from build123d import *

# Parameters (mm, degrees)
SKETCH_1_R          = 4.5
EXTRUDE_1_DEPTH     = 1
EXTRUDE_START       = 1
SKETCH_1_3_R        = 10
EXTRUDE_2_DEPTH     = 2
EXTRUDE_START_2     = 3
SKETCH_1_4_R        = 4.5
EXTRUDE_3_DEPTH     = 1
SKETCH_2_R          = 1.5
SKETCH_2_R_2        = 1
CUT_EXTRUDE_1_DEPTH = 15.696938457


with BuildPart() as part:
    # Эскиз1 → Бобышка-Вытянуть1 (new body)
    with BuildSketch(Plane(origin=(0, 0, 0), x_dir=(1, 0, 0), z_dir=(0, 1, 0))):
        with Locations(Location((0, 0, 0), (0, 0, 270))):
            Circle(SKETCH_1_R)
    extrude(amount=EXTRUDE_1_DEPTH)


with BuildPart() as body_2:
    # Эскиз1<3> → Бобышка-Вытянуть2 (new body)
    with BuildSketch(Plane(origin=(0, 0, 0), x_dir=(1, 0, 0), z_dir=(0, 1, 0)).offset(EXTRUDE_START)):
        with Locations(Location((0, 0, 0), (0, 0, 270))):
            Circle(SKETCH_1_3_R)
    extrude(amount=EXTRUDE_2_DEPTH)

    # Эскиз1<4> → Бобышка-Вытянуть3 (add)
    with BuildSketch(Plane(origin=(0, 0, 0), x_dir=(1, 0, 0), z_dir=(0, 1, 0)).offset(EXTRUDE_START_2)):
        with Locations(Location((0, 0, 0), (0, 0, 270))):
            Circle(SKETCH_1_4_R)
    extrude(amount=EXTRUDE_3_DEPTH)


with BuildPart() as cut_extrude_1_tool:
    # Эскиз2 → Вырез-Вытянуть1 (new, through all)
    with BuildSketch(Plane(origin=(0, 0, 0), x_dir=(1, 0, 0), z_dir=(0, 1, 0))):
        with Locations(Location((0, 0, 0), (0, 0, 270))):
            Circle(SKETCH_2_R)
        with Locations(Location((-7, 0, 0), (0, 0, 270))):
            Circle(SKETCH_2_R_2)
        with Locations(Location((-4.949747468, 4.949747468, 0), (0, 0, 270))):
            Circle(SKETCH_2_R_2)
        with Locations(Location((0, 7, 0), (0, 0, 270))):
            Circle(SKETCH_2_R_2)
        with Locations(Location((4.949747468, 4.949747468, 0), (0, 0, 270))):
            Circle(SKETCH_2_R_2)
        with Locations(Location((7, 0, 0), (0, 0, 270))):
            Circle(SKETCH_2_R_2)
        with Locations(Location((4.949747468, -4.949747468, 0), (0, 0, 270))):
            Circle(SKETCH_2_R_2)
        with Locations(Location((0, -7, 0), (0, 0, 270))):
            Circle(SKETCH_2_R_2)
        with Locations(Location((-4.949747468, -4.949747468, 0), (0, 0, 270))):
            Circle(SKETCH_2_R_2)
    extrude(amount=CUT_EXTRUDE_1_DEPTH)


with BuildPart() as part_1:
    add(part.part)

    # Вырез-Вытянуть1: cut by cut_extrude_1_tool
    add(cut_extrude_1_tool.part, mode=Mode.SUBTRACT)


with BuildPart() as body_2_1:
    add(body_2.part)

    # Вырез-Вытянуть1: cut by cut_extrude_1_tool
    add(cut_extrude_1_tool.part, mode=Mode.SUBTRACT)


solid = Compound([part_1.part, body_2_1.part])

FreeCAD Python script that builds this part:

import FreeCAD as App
import Part
import Sketcher

V = App.Vector

doc = App.newDocument("Part")
params = doc.addObject("Spreadsheet::Sheet", "Params")
for row, (alias, value) in enumerate([
    ("sketch1_diameter", "9 mm"),
    ("pad1_length", "1 mm"),
    ("sketch2_diameter", "20 mm"),
    ("pad2_length", "2 mm"),
    ("sketch3_diameter", "9 mm"),
    ("pad3_length", "1 mm"),
    ("sketch4_diameter", "3 mm"),
    ("sketch4_diameter2", "2 mm"),
    ("pad4_length", "15.696938 mm"),
], start=1):
    params.set(f"A{row}", alias)
    params.set(f"B{row}", "=" + value)
    params.setAlias(f"B{row}", alias)

body = doc.addObject("PartDesign::Body", "Body")

# Sketch on XZ plane
sketch1 = body.newObject("Sketcher::SketchObject", "Sketch")
sketch1.AttachmentSupport = (doc.getObject("XZ_Plane"), [""])
sketch1.MapMode = "FlatFace"
sketch1.addGeometry(Part.Circle(V(0, 0, 0), V(0, 0, 1), 4.5), False)
sketch1.addConstraint(Sketcher.Constraint("Coincident", 0, 3, -1, 1))
sketch1.addConstraint(Sketcher.Constraint("Diameter", 0, 9.0))
sketch1.setExpression("Constraints[1]", "Params.sketch1_diameter")
pad1 = body.newObject("PartDesign::Pad", "Pad")
pad1.Profile = sketch1
pad1.setExpression("Length", "Params.pad1_length")
pad1.Reversed = True
body2 = doc.addObject("PartDesign::Body", "Body001")

# Sketch on XZ plane
sketch2 = body2.newObject("Sketcher::SketchObject", "Sketch001")
sketch2.AttachmentSupport = (doc.getObject("XZ_Plane001"), [""])
sketch2.MapMode = "FlatFace"
sketch2.AttachmentOffset = App.Placement(V(0, 0, -1), App.Rotation())
sketch2.addGeometry(Part.Circle(V(0, 0, 0), V(0, 0, 1), 10), False)
sketch2.addConstraint(Sketcher.Constraint("Coincident", 0, 3, -1, 1))
sketch2.addConstraint(Sketcher.Constraint("Diameter", 0, 20.0))
sketch2.setExpression("Constraints[1]", "Params.sketch2_diameter")
pad2 = body2.newObject("PartDesign::Pad", "Pad001")
pad2.Profile = sketch2
pad2.setExpression("Length", "Params.pad2_length")
pad2.Reversed = True

# Sketch on XZ plane
sketch3 = body2.newObject("Sketcher::SketchObject", "Sketch002")
sketch3.AttachmentSupport = (doc.getObject("XZ_Plane001"), [""])
sketch3.MapMode = "FlatFace"
sketch3.AttachmentOffset = App.Placement(V(0, 0, -3), App.Rotation())
sketch3.addGeometry(Part.Circle(V(0, 0, 0), V(0, 0, 1), 4.5), False)
sketch3.addConstraint(Sketcher.Constraint("Coincident", 0, 3, -1, 1))
sketch3.addConstraint(Sketcher.Constraint("Diameter", 0, 9.0))
sketch3.setExpression("Constraints[1]", "Params.sketch3_diameter")
pad3 = body2.newObject("PartDesign::Pad", "Pad002")
pad3.Profile = sketch3
pad3.setExpression("Length", "Params.pad3_length")
pad3.Reversed = True
body3 = doc.addObject("PartDesign::Body", "Body002")
body3.AllowCompound = True

# Sketch on XZ plane
sketch4 = body3.newObject("Sketcher::SketchObject", "Sketch003")
sketch4.AttachmentSupport = (doc.getObject("XZ_Plane002"), [""])
sketch4.MapMode = "FlatFace"
sketch4.addGeometry(Part.Circle(V(0, 0, 0), V(0, 0, 1), 1.5), False)
sketch4.addGeometry(Part.Circle(V(-7, 0, 0), V(0, 0, 1), 1), False)
sketch4.addGeometry(Part.Circle(V(-4.949747, -4.949747, 0), V(0, 0, 1), 1), False)
sketch4.addGeometry(Part.Circle(V(0, -7, 0), V(0, 0, 1), 1), False)
sketch4.addGeometry(Part.Circle(V(4.949747, -4.949747, 0), V(0, 0, 1), 1), False)
sketch4.addGeometry(Part.Circle(V(7, 0, 0), V(0, 0, 1), 1), False)
sketch4.addGeometry(Part.Circle(V(4.949747, 4.949747, 0), V(0, 0, 1), 1), False)
sketch4.addGeometry(Part.Circle(V(0, 7, 0), V(0, 0, 1), 1), False)
sketch4.addGeometry(Part.Circle(V(-4.949747, 4.949747, 0), V(0, 0, 1), 1), False)
sketch4.addConstraint(Sketcher.Constraint("Coincident", 0, 3, -1, 1))
sketch4.addConstraint(Sketcher.Constraint("Equal", 1, 2))
sketch4.addConstraint(Sketcher.Constraint("Equal", 2, 3))
sketch4.addConstraint(Sketcher.Constraint("Equal", 3, 4))
sketch4.addConstraint(Sketcher.Constraint("Equal", 4, 5))
sketch4.addConstraint(Sketcher.Constraint("Equal", 5, 6))
sketch4.addConstraint(Sketcher.Constraint("Equal", 6, 7))
sketch4.addConstraint(Sketcher.Constraint("Equal", 7, 8))
sketch4.addConstraint(Sketcher.Constraint("Symmetric", 1, 3, 5, 3, -1, 1))
sketch4.addConstraint(Sketcher.Constraint("Symmetric", 2, 3, 6, 3, -1, 1))
sketch4.addConstraint(Sketcher.Constraint("Symmetric", 3, 3, 7, 3, -1, 1))
sketch4.addConstraint(Sketcher.Constraint("Symmetric", 4, 3, 8, 3, -1, 1))
sketch4.addConstraint(Sketcher.Constraint("Symmetric", 2, 3, 4, 3, -2))
sketch4.addConstraint(Sketcher.Constraint("PointOnObject", 1, 3, -1))
sketch4.addConstraint(Sketcher.Constraint("PointOnObject", 3, 3, -2))
sketch4.addConstraint(Sketcher.Constraint("Diameter", 0, 3.0))
sketch4.addConstraint(Sketcher.Constraint("Diameter", 1, 2.0))
sketch4.addConstraint(Sketcher.Constraint("DistanceX", 1, 3, -1, 1, 7.0))
sketch4.addConstraint(Sketcher.Constraint("DistanceY", 3, 3, -1, 1, 7.0))
sketch4.addConstraint(Sketcher.Constraint("DistanceX", 2, 3, -1, 1, 4.949747))
sketch4.addConstraint(Sketcher.Constraint("DistanceY", 2, 3, -1, 1, 4.949747))
sketch4.setExpression("Constraints[15]", "Params.sketch4_diameter")
sketch4.setExpression("Constraints[16]", "Params.sketch4_diameter2")
pad4 = body3.newObject("PartDesign::Pad", "Pad003")
pad4.Profile = sketch4
pad4.setExpression("Length", "Params.pad4_length")
pad4.Reversed = True
doc.recompute()

body4 = doc.addObject("PartDesign::Body", "Body003")
body4.BaseFeature = body3
boolean = body.newObject("PartDesign::Boolean", "Boolean")
boolean.Type = "Cut"
boolean.addObjects([body4])
doc.recompute()

boolean2 = body2.newObject("PartDesign::Boolean", "Boolean001")
boolean2.Type = "Cut"
boolean2.addObjects([body3])

doc.recompute()
